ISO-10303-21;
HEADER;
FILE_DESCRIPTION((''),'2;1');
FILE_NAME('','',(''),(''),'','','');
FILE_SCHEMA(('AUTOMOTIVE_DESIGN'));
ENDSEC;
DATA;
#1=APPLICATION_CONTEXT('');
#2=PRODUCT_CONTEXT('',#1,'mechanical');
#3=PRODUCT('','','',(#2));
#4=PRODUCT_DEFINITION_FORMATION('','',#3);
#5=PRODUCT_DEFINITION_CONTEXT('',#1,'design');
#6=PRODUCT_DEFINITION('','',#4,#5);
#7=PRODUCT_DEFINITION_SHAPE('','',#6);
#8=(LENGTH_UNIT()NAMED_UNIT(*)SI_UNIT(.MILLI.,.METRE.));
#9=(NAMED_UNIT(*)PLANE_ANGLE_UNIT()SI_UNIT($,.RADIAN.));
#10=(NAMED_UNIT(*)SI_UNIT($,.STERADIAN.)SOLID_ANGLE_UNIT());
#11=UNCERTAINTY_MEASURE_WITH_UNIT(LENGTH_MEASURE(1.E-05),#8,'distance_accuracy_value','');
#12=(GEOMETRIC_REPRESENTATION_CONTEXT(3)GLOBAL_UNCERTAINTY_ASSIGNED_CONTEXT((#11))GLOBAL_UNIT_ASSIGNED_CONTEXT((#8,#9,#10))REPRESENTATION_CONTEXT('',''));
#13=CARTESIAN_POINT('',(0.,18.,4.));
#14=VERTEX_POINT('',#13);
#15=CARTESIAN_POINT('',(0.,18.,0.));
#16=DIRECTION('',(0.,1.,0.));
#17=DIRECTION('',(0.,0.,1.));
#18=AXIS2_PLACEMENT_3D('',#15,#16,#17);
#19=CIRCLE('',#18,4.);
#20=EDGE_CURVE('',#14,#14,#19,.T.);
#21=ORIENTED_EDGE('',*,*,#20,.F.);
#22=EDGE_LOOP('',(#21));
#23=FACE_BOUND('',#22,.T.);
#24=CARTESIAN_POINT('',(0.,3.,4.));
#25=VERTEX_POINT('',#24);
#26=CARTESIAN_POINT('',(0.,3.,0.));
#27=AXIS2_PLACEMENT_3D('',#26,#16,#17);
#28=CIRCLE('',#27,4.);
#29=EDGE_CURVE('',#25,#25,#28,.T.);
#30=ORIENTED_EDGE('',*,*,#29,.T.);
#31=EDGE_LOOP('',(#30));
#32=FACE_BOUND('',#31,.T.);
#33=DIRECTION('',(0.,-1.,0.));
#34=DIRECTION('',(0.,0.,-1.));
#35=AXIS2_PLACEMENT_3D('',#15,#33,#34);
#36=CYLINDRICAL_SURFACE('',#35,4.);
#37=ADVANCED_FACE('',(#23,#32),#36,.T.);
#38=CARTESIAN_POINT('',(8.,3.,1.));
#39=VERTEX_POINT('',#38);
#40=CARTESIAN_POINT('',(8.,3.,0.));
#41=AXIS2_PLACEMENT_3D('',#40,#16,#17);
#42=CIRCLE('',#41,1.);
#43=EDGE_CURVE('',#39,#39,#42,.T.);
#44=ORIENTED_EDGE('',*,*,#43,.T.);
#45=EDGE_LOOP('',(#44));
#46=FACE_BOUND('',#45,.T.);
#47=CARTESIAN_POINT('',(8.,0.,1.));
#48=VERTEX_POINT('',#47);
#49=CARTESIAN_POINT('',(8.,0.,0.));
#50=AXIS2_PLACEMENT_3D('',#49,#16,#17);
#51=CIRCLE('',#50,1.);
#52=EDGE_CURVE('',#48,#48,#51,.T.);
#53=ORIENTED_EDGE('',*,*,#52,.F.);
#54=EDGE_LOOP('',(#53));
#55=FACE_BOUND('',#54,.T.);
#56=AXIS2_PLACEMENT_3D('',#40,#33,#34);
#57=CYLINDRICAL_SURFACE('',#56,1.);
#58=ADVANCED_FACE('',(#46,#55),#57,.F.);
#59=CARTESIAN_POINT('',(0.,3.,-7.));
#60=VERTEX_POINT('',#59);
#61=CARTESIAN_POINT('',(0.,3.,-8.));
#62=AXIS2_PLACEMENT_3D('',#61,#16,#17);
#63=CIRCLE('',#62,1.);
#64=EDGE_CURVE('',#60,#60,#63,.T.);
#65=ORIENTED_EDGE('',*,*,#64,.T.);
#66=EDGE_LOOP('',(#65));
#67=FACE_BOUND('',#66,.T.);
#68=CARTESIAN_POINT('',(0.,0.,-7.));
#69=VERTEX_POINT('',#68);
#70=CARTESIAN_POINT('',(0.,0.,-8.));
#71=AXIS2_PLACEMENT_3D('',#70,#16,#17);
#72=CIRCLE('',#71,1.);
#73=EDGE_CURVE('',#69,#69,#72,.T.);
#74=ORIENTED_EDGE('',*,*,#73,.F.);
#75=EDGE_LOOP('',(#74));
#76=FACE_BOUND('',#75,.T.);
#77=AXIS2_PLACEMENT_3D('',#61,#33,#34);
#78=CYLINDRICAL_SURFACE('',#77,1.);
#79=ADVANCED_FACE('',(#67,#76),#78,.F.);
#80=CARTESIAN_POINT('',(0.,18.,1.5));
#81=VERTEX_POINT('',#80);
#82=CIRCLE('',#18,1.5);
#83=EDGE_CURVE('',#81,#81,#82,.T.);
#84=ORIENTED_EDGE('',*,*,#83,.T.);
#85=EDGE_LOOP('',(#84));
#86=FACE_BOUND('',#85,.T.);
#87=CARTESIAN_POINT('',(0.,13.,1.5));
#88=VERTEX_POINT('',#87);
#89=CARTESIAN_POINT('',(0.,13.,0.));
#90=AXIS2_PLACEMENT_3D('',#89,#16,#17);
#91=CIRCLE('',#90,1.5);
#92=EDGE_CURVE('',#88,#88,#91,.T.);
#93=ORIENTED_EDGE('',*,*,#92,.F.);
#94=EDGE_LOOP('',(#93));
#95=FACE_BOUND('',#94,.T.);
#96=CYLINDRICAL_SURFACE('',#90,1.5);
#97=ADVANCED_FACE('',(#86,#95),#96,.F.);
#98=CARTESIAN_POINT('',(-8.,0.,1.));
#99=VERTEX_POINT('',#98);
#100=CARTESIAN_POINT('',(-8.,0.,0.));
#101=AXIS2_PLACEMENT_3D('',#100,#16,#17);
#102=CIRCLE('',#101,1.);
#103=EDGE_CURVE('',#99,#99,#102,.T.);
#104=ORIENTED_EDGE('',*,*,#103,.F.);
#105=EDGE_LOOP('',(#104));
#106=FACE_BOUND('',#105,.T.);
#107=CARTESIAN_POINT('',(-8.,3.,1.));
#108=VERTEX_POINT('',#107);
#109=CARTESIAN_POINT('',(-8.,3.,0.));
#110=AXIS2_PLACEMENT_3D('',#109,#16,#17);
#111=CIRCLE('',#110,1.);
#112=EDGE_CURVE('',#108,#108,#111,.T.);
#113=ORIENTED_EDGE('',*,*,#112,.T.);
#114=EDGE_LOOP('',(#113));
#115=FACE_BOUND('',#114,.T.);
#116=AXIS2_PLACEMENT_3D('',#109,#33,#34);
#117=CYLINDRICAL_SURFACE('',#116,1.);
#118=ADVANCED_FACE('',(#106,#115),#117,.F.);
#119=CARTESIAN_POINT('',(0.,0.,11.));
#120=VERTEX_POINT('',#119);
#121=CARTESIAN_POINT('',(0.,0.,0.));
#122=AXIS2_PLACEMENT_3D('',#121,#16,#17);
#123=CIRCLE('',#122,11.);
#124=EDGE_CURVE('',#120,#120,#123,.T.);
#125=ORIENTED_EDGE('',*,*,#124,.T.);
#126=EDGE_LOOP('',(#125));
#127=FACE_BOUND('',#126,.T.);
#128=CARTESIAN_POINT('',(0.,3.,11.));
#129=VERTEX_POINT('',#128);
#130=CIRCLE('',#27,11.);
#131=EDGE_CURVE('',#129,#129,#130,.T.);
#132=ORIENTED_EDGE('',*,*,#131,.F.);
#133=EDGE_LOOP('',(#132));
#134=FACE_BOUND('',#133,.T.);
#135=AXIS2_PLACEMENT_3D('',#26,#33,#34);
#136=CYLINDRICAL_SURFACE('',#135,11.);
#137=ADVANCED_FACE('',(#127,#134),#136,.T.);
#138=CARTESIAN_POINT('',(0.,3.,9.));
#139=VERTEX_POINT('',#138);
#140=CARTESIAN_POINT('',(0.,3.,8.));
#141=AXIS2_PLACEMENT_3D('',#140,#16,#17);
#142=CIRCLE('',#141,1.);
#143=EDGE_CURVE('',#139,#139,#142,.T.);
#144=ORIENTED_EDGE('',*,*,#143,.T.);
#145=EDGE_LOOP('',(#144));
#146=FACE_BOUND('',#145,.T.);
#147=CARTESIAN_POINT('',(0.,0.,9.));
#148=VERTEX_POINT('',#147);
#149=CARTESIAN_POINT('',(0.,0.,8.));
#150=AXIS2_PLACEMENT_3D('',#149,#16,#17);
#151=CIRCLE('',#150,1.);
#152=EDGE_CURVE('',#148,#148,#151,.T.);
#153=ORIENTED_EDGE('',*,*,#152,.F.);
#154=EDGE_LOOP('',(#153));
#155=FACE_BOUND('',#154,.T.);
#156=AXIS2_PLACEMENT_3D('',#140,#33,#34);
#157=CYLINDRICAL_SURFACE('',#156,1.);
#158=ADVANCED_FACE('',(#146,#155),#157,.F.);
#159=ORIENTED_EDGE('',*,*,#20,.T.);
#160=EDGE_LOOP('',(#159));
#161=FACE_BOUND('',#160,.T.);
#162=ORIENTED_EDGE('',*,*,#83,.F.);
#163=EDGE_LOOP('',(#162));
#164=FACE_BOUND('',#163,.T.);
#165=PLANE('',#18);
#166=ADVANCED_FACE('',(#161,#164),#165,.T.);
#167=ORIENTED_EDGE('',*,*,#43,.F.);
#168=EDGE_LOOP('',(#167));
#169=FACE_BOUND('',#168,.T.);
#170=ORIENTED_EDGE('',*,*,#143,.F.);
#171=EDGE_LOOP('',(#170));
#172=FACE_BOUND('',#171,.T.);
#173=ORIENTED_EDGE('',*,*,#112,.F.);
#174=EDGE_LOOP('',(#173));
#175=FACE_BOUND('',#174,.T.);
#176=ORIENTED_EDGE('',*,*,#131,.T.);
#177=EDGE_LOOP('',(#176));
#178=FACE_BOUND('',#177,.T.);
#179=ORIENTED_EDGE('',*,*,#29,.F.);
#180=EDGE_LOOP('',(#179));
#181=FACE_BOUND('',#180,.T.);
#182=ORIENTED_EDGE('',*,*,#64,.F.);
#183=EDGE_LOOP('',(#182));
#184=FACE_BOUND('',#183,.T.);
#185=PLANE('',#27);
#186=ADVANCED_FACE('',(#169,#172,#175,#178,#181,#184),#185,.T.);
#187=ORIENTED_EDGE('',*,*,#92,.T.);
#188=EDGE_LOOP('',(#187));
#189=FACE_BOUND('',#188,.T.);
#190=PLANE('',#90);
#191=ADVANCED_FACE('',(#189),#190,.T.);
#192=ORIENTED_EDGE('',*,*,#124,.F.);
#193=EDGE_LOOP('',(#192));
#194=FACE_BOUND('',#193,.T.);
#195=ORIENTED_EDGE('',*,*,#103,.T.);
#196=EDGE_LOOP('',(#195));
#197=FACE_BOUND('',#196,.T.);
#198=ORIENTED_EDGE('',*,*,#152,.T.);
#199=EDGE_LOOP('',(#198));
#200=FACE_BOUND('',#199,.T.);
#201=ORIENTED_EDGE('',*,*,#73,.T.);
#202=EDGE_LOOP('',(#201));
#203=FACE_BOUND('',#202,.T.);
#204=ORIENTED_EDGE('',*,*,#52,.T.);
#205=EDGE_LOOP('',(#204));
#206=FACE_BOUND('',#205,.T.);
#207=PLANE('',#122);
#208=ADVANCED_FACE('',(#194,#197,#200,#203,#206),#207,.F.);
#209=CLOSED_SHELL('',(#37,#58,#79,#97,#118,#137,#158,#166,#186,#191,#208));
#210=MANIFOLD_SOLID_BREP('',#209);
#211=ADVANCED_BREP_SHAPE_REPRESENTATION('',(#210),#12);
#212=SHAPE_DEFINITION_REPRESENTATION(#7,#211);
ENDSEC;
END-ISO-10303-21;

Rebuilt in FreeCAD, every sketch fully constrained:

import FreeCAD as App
import Part
import Sketcher
Q = App.Units.Quantity

doc = App.newDocument("Part")
body = doc.addObject("PartDesign::Body", "Body")

sketch1 = body.newObject("Sketcher::SketchObject", "Sketch")
sketch1.AttachmentSupport = (doc.getObject("XZ_Plane"), [""])
sketch1.MapMode = "FlatFace"
sketch1.addGeometry([
    Part.Circle(App.Vector(0, 0, 0), App.Vector(0, 0, 1), 11),
    Part.Circle(App.Vector(0, -8, 0), App.Vector(0, 0, 1), 1),
    Part.Circle(App.Vector(-8, 0, 0), App.Vector(0, 0, 1), 1),
    Part.Circle(App.Vector(8, 0, 0), App.Vector(0, 0, 1), 1),
    Part.Circle(App.Vector(0, 8, 0), App.Vector(0, 0, 1), 1),
], False)
sketch1.addConstraint([
    Sketcher.Constraint("Coincident", 0, 3, -1, 1),
    Sketcher.Constraint("Equal", 1, 2),
    Sketcher.Constraint("Equal", 2, 3),
    Sketcher.Constraint("Equal", 3, 4),
    Sketcher.Constraint("Symmetric", 2, 3, 3, 3, -1, 1),
    Sketcher.Constraint("Symmetric", 1, 3, 4, 3, -1, 1),
    Sketcher.Constraint("PointOnObject", 1, 3, -2),
    Sketcher.Constraint("PointOnObject", 2, 3, -1),
    Sketcher.Constraint("Diameter", 0, Q("22 mm")),
    Sketcher.Constraint("Diameter", 1, Q("2 mm")),
    Sketcher.Constraint("DistanceY", 1, 3, -1, 1, Q("8 mm")),
    Sketcher.Constraint("DistanceX", 2, 3, -1, 1, Q("8 mm")),
])
pad1 = body.newObject("PartDesign::Pad", "Pad")
pad1.Profile = sketch1
pad1.Length = 3
pad1.Reversed = True

sketch2 = body.newObject("Sketcher::SketchObject", "Sketch001")
sketch2.AttachmentSupport = (doc.getObject("XZ_Plane"), [""])
sketch2.MapMode = "FlatFace"
sketch2.AttachmentOffset = App.Placement(App.Vector(0, 0, -3), App.Rotation())
sketch2.addGeometry(Part.Circle(App.Vector(0, 0, 0), App.Vector(0, 0, 1), 4), False)
sketch2.addConstraint([
    Sketcher.Constraint("Coincident", 0, 3, -1, 1),
    Sketcher.Constraint("Diameter", 0, Q("8 mm")),
])
pad2 = body.newObject("PartDesign::Pad", "Pad001")
pad2.Profile = sketch2
pad2.Length = 15
pad2.Reversed = True

sketch3 = body.newObject("Sketcher::SketchObject", "Sketch002")
sketch3.AttachmentSupport = (doc.getObject("XZ_Plane"), [""])
sketch3.MapMode = "FlatFace"
sketch3.AttachmentOffset = App.Placement(App.Vector(0, 0, -18), App.Rotation())
sketch3.addGeometry(Part.Circle(App.Vector(0, 0, 0), App.Vector(0, 0, 1), 1.5), False)
sketch3.addConstraint([
    Sketcher.Constraint("Coincident", 0, 3, -1, 1),
    Sketcher.Constraint("Diameter", 0, Q("3 mm")),
])
pocket1 = body.newObject("PartDesign::Pocket", "Pocket")
pocket1.Profile = sketch3
pocket1.Length = 5
pocket1.Reversed = True

doc.recompute()
